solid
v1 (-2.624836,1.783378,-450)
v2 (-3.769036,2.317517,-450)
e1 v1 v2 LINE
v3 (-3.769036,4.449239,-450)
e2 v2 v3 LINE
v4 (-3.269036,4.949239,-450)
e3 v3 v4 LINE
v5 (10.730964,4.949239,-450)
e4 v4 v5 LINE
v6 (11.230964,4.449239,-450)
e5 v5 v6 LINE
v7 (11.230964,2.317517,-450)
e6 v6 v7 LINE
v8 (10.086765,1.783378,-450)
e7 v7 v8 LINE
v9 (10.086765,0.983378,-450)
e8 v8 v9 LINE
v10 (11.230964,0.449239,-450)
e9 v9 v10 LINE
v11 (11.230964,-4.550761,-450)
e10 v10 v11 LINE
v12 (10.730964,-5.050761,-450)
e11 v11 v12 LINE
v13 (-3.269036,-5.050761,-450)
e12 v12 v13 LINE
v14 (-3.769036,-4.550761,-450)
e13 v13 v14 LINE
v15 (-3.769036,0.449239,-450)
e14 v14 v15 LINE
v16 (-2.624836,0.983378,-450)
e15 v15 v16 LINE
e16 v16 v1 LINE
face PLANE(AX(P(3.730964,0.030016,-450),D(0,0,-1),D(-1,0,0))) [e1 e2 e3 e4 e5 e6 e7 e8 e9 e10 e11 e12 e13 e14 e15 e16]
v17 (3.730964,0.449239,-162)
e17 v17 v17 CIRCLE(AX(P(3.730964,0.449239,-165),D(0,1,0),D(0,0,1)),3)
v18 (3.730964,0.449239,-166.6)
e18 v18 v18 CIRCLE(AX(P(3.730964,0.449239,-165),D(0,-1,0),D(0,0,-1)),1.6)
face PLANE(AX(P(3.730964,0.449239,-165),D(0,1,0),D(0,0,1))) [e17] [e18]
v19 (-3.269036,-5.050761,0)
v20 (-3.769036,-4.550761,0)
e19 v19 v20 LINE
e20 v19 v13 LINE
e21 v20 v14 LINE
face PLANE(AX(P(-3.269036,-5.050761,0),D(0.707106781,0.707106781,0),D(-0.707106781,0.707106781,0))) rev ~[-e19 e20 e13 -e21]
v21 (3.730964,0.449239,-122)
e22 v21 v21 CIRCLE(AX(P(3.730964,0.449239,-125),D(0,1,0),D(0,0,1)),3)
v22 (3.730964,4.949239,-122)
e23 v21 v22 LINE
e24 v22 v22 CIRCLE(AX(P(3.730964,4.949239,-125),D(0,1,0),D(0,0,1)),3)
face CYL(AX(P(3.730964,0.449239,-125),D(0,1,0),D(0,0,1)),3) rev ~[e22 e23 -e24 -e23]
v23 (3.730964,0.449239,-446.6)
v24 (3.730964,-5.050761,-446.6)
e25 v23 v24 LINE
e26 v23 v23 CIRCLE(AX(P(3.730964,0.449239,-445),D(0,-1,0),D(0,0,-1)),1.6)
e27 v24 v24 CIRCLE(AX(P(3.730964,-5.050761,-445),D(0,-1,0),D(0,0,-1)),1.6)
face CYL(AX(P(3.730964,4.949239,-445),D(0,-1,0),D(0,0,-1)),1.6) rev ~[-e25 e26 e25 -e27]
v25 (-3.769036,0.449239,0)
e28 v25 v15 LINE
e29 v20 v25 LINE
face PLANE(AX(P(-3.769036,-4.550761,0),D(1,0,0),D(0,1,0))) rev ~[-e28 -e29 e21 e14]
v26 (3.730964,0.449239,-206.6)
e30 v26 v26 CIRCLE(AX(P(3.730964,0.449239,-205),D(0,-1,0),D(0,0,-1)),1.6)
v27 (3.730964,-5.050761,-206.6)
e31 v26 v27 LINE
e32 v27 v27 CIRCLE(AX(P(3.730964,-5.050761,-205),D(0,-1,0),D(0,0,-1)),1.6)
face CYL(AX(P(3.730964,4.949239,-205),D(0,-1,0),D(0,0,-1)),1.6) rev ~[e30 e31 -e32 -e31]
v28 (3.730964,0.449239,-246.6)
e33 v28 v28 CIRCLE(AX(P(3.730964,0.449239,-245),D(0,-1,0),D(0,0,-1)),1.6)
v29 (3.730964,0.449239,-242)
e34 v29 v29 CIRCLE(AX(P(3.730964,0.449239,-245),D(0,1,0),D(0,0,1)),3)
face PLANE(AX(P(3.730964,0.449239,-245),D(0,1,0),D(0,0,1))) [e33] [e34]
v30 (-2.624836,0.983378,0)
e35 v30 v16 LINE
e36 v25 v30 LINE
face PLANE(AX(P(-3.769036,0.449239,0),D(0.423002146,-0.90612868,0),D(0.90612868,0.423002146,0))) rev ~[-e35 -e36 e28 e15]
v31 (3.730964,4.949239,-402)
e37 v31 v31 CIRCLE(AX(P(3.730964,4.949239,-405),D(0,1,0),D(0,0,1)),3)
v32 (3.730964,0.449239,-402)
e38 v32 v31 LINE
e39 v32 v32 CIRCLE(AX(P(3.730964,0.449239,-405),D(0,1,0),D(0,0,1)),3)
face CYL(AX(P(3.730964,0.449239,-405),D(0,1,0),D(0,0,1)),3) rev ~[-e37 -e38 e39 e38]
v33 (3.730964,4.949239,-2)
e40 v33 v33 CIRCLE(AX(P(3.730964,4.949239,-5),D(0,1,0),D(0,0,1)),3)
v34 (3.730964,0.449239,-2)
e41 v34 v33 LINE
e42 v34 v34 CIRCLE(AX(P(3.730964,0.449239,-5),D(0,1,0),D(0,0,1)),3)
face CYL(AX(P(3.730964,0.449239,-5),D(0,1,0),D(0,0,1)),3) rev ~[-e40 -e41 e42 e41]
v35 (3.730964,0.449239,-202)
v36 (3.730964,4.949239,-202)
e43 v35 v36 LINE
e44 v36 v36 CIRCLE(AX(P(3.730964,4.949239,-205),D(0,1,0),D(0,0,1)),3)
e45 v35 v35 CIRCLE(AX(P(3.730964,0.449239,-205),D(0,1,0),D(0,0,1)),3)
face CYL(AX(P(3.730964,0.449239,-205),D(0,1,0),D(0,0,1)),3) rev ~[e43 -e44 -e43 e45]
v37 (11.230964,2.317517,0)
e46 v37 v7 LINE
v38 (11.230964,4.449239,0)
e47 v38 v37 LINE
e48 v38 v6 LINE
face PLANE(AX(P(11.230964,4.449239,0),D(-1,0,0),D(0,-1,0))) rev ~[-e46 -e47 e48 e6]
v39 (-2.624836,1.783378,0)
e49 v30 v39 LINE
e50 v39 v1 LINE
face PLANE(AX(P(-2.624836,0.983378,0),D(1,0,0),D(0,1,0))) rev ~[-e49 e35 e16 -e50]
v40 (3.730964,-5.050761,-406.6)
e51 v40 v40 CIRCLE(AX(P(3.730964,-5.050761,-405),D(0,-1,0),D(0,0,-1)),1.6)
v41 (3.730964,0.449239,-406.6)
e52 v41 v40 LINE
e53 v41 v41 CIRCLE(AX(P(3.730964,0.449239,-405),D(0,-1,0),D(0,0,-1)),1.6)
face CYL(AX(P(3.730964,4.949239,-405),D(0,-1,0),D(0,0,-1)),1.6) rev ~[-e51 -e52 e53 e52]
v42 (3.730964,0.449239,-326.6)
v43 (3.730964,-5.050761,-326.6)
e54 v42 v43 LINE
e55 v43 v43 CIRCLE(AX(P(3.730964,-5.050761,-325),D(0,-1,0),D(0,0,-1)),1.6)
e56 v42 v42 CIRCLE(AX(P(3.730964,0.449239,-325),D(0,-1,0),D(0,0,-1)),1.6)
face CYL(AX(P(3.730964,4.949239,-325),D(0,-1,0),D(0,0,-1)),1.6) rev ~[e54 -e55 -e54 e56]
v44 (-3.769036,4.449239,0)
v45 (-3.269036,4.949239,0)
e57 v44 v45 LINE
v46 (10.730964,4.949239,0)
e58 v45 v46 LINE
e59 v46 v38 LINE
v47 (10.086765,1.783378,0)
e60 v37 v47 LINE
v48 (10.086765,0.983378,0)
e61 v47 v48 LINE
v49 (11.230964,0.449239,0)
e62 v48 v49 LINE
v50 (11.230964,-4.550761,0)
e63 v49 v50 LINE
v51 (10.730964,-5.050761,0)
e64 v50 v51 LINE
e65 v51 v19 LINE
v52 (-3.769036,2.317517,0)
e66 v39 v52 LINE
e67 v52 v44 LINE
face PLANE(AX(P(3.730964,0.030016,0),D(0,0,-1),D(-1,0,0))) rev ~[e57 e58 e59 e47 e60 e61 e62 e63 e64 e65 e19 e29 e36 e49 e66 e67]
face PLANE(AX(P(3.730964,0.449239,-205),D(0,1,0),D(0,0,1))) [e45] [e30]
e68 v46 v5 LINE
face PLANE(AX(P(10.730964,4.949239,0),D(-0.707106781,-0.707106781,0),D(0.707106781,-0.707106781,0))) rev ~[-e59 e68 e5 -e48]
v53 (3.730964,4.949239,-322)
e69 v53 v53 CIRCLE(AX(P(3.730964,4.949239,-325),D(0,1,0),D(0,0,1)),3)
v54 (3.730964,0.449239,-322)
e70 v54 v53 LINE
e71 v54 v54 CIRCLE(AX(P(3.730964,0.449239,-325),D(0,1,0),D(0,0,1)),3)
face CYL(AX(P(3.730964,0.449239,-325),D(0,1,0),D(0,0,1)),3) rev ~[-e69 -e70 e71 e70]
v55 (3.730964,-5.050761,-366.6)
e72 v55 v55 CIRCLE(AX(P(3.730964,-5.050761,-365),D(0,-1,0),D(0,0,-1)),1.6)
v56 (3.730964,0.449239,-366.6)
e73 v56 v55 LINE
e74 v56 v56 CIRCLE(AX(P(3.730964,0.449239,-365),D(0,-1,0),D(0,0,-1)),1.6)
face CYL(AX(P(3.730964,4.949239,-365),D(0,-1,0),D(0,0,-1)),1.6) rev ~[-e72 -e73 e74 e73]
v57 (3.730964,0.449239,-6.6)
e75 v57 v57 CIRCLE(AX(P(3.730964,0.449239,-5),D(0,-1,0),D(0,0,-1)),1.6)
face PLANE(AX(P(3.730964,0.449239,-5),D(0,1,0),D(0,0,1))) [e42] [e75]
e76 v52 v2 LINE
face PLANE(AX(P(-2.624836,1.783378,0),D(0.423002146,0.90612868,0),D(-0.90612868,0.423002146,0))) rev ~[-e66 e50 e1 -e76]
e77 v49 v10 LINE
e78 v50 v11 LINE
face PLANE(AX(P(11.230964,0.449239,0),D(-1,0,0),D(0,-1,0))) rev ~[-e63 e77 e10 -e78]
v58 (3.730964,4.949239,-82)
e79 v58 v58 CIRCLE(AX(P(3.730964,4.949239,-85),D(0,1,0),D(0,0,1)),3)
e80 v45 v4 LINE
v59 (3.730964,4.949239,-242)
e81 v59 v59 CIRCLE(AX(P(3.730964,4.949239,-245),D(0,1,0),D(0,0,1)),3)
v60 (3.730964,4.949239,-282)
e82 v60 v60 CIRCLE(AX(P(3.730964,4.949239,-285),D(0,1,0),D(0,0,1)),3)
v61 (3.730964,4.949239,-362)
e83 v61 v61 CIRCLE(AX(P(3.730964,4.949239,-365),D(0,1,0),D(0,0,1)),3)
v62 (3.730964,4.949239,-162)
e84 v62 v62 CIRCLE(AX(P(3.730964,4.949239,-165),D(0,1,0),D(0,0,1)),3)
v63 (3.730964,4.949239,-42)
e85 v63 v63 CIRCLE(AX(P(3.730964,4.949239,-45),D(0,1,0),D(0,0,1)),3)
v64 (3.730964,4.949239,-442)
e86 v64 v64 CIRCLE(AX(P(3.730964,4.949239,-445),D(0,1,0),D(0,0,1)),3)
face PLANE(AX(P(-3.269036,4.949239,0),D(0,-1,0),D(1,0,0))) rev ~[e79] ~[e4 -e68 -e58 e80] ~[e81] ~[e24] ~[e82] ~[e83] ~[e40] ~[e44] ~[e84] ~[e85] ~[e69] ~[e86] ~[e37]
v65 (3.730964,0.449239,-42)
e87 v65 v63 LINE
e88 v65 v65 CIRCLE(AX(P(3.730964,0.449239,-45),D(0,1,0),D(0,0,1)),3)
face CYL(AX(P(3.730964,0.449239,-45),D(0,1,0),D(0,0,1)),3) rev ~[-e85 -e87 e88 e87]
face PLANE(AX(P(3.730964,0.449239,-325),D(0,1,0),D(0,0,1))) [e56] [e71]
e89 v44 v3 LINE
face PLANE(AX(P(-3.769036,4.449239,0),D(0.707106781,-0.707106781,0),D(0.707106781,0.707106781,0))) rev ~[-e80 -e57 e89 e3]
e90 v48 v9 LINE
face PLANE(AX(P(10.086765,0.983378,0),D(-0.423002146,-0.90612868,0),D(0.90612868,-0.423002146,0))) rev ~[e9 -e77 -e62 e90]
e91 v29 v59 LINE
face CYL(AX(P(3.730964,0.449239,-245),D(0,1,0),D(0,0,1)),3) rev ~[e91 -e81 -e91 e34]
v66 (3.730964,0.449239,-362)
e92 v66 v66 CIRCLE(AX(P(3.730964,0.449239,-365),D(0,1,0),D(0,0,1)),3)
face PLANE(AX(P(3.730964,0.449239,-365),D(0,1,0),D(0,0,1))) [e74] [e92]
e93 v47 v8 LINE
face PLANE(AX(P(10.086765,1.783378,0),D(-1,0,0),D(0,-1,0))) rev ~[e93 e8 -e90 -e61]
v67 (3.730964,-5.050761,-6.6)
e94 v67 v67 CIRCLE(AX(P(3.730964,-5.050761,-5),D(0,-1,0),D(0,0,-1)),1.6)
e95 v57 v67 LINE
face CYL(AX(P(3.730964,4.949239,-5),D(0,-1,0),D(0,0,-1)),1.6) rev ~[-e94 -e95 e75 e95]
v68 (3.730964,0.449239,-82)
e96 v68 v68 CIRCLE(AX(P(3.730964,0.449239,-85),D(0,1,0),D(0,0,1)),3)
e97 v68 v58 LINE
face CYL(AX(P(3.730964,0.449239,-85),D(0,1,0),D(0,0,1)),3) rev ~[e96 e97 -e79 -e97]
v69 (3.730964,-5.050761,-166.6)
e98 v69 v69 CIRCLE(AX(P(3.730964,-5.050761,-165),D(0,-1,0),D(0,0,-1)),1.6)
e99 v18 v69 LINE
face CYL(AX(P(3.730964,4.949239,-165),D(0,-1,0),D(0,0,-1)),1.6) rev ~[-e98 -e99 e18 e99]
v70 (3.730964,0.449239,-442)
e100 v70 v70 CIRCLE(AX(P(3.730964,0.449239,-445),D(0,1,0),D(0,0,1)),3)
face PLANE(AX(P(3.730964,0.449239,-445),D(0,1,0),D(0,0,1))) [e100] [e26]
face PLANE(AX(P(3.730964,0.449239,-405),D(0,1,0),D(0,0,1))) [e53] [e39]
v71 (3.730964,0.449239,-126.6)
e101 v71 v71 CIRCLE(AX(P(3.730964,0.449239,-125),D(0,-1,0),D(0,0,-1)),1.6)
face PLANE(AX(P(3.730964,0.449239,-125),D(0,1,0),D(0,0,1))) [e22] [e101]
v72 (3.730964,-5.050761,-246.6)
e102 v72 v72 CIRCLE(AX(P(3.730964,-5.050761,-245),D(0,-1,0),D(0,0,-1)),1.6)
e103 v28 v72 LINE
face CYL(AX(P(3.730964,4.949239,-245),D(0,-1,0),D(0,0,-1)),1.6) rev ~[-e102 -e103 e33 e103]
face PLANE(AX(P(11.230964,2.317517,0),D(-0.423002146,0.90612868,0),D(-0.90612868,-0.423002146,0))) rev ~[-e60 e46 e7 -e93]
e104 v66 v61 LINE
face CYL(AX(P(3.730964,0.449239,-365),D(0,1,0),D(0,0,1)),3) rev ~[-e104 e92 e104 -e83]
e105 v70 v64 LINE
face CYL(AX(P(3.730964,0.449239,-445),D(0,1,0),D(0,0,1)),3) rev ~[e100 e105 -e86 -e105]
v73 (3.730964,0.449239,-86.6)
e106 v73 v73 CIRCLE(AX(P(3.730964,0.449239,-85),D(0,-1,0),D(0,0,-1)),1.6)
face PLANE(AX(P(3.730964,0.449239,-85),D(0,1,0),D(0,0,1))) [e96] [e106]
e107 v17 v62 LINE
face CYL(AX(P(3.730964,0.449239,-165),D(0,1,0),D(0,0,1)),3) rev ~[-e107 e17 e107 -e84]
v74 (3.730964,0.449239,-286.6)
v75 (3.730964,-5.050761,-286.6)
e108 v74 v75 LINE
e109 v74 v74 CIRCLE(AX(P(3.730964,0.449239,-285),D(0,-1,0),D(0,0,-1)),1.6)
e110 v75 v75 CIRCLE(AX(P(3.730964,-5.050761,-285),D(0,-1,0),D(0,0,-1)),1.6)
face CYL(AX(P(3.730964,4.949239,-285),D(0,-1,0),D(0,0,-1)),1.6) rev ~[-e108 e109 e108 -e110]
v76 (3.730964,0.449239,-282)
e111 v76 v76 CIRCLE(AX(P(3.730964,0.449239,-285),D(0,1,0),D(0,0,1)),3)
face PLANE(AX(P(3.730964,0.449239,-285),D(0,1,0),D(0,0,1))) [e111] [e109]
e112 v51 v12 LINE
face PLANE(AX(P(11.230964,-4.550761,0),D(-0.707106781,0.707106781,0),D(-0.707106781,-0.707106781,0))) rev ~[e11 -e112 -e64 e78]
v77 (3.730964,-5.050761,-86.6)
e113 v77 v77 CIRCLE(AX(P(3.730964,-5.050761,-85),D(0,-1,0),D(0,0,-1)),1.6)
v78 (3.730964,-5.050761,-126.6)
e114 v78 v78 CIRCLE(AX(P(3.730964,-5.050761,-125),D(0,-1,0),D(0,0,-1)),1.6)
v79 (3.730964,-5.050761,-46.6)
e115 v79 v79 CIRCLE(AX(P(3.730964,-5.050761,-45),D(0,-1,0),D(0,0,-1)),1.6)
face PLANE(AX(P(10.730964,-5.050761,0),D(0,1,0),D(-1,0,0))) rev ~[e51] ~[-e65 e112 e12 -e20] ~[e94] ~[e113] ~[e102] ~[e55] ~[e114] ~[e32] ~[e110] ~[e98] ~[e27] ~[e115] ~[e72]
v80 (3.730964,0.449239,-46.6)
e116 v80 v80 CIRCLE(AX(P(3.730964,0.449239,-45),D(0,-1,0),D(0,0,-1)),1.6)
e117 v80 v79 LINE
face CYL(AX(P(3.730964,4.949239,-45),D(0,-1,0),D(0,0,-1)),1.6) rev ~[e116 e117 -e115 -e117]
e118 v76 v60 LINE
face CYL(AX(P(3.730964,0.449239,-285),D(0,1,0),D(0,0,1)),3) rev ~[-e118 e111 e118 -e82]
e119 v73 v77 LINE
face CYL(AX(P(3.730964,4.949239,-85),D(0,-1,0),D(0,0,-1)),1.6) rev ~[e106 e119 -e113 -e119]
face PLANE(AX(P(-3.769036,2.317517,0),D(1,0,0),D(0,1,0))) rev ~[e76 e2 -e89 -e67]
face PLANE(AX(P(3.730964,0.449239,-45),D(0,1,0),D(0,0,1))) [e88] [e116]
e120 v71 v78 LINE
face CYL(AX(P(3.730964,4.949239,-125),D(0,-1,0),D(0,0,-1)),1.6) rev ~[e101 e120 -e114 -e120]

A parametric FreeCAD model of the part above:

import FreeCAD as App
import Part
import Sketcher

V = App.Vector
Q = App.Units.Quantity


def add_polygon(sketch, points):
    """Adds a closed chain of lines whose ends are joined by coincident constraints."""
    first, n = sketch.GeometryCount, len(points)
    for a, b in zip(points, points[1:] + points[:1]):
        sketch.addGeometry(Part.LineSegment(App.Vector(*a, 0), App.Vector(*b, 0)), False)
    for i in range(n):
        sketch.addConstraint(Sketcher.Constraint("Coincident", first + i, 2, first + (i + 1) % n, 1))

doc = App.newDocument("Part")
body = doc.addObject("PartDesign::Body", "Body")

# Sketch on XY plane
sketch1 = body.newObject("Sketcher::SketchObject", "Sketch")
sketch1.AttachmentSupport = (doc.getObject("XY_Plane"), [""])
sketch1.MapMode = "FlatFace"
add_polygon(sketch1, [(10.7, 4.9), (-3.3, 4.9), (-3.8, 4.4), (-3.8, 2.3), (-2.6, 1.8), (-2.6, 1), (-3.8, 0.4), (-3.8, -4.6), (-3.3, -5.1), (10.7, -5.1), (11.2, -4.6), (11.2, 0.4), (10.1, 1), (10.1, 1.8), (11.2, 2.3), (11.2, 4.4)])  # lines 0-15
sketch1.addConstraint([
    Sketcher.Constraint("Horizontal", 0),
    Sketcher.Constraint("Vertical", 2),
    Sketcher.Constraint("Vertical", 4),
    Sketcher.Constraint("Vertical", 6),
    Sketcher.Constraint("Horizontal", 8),
    Sketcher.Constraint("Vertical", 10),
    Sketcher.Constraint("Vertical", 12),
    Sketcher.Constraint("Vertical", 14),
    Sketcher.Constraint("Perpendicular", 1, 7),
    Sketcher.Constraint("Perpendicular", 7, 9),
    Sketcher.Constraint("Parallel", 3, 11),
    Sketcher.Constraint("Parallel", 5, 13),
    Sketcher.Constraint("Perpendicular", 9, 15),
    Sketcher.Constraint("Horizontal", 6, 2, 9, 2),
    Sketcher.Constraint("Horizontal", 5, 2, 10, 2),
    Sketcher.Constraint("Horizontal", 4, 2, 11, 2),
    Sketcher.Constraint("Horizontal", 3, 2, 12, 2),
    Sketcher.Constraint("Horizontal", 2, 2, 13, 2),
    Sketcher.Constraint("Horizontal", 1, 2, 14, 2),
    Sketcher.Constraint("Vertical", 2, 2, 5, 2),
    Sketcher.Constraint("Vertical", 0, 2, 7, 2),
    Sketcher.Constraint("Vertical", 10, 2, 13, 2),
    Sketcher.Constraint("Vertical", 8, 2, 15, 2),
    Sketcher.Constraint("DistanceX", 0, 2, 0, 1, Q("14 mm")),
    Sketcher.Constraint("DistanceY", 6, 2, 6, 1, Q("5 mm")),
    Sketcher.Constraint("DistanceY", 4, 2, 4, 1, Q("0.8 mm")),
    Sketcher.Constraint("DistanceY", 5, 2, 1, 2, Q("4 mm")),
    Sketcher.Constraint("DistanceX", 6, 2, 9, 2, Q("15 mm")),
    Sketcher.Constraint("DistanceY", 2, 2, 2, 1, Q("2.131721 mm")),
    Sketcher.Constraint("DistanceX", 2, 2, 3, 2, Q("1.1442 mm")),
    Sketcher.Constraint("DistanceY", -1, 1, 0, 2, Q("4.949239 mm")),
    Sketcher.Constraint("DistanceX", 0, 2, -1, 1, Q("3.269036 mm")),
])
pad1 = body.newObject("PartDesign::Pad", "Pad")
pad1.Profile = sketch1
pad1.Length = 450
pad1.Reversed = True

# Sketch on XZ plane
sketch2 = body.newObject("Sketcher::SketchObject", "Sketch001")
sketch2.AttachmentSupport = (doc.getObject("XZ_Plane"), [""])
sketch2.MapMode = "FlatFace"
sketch2.AttachmentOffset = App.Placement(V(0, 0, -4.949239), App.Rotation())
sketch2.addGeometry([
    Part.Circle(V(3.7, -445, 0), V(0, 0, 1), 1.6),  # 0
    Part.Circle(V(3.7, -405, 0), V(0, 0, 1), 1.6),  # 1
    Part.Circle(V(3.7, -365, 0), V(0, 0, 1), 1.6),  # 2
    Part.Circle(V(3.7, -325, 0), V(0, 0, 1), 1.6),  # 3
    Part.Circle(V(3.7, -285, 0), V(0, 0, 1), 1.6),  # 4
    Part.Circle(V(3.7, -245, 0), V(0, 0, 1), 1.6),  # 5
    Part.Circle(V(3.7, -205, 0), V(0, 0, 1), 1.6),  # 6
    Part.Circle(V(3.7, -165, 0), V(0, 0, 1), 1.6),  # 7
    Part.Circle(V(3.7, -125, 0), V(0, 0, 1), 1.6),  # 8
    Part.Circle(V(3.7, -85, 0), V(0, 0, 1), 1.6),  # 9
    Part.Circle(V(3.7, -45, 0), V(0, 0, 1), 1.6),  # 10
    Part.Circle(V(3.7, -5, 0), V(0, 0, 1), 1.6),  # 11
], False)
sketch2.addConstraint([
    Sketcher.Constraint("Equal", 0, 1),
    Sketcher.Constraint("Equal", 1, 2),
    Sketcher.Constraint("Equal", 2, 3),
    Sketcher.Constraint("Equal", 3, 4),
    Sketcher.Constraint("Equal", 4, 5),
    Sketcher.Constraint("Equal", 5, 6),
    Sketcher.Constraint("Equal", 6, 7),
    Sketcher.Constraint("Equal", 7, 8),
    Sketcher.Constraint("Equal", 8, 9),
    Sketcher.Constraint("Equal", 9, 10),
    Sketcher.Constraint("Equal", 10, 11),
    Sketcher.Constraint("Vertical", 0, 3, 1, 3),
    Sketcher.Constraint("Vertical", 1, 3, 2, 3),
    Sketcher.Constraint("Vertical", 2, 3, 3, 3),
    Sketcher.Constraint("Vertical", 3, 3, 4, 3),
    Sketcher.Constraint("Vertical", 4, 3, 5, 3),
    Sketcher.Constraint("Vertical", 5, 3, 6, 3),
    Sketcher.Constraint("Vertical", 6, 3, 7, 3),
    Sketcher.Constraint("Vertical", 7, 3, 8, 3),
    Sketcher.Constraint("Vertical", 8, 3, 9, 3),
    Sketcher.Constraint("Vertical", 9, 3, 10, 3),
    Sketcher.Constraint("Vertical", 10, 3, 11, 3),
    Sketcher.Constraint("Diameter", 0, Q("3.2 mm")),
    Sketcher.Constraint("DistanceY", 0, 3, -1, 1, Q("445 mm")),
    Sketcher.Constraint("DistanceY", 1, 3, -1, 1, Q("405 mm")),
    Sketcher.Constraint("DistanceY", 2, 3, -1, 1, Q("365 mm")),
    Sketcher.Constraint("DistanceY", 3, 3, -1, 1, Q("325 mm")),
    Sketcher.Constraint("DistanceY", 4, 3, -1, 1, Q("285 mm")),
    Sketcher.Constraint("DistanceY", 5, 3, -1, 1, Q("245 mm")),
    Sketcher.Constraint("DistanceY", 6, 3, -1, 1, Q("205 mm")),
    Sketcher.Constraint("DistanceY", 7, 3, -1, 1, Q("165 mm")),
    Sketcher.Constraint("DistanceY", 8, 3, -1, 1, Q("125 mm")),
    Sketcher.Constraint("DistanceY", 9, 3, -1, 1, Q("85 mm")),
    Sketcher.Constraint("DistanceY", 10, 3, -1, 1, Q("45 mm")),
    Sketcher.Constraint("DistanceY", 11, 3, -1, 1, Q("5 mm")),
    Sketcher.Constraint("DistanceX", -1, 1, 0, 3, Q("3.730964 mm")),
])
doc.recompute()
hole = body.newObject("PartDesign::Hole", "Hole")
hole.Profile = sketch2
hole.ThreadType = "None"
hole.Diameter = 3.2
hole.DepthType = "ThroughAll"
hole.HoleCutType = "Counterbore"
hole.HoleCutDiameter = 6
hole.HoleCutDepth = 4.5
hole.Reversed = True

doc.recompute()
